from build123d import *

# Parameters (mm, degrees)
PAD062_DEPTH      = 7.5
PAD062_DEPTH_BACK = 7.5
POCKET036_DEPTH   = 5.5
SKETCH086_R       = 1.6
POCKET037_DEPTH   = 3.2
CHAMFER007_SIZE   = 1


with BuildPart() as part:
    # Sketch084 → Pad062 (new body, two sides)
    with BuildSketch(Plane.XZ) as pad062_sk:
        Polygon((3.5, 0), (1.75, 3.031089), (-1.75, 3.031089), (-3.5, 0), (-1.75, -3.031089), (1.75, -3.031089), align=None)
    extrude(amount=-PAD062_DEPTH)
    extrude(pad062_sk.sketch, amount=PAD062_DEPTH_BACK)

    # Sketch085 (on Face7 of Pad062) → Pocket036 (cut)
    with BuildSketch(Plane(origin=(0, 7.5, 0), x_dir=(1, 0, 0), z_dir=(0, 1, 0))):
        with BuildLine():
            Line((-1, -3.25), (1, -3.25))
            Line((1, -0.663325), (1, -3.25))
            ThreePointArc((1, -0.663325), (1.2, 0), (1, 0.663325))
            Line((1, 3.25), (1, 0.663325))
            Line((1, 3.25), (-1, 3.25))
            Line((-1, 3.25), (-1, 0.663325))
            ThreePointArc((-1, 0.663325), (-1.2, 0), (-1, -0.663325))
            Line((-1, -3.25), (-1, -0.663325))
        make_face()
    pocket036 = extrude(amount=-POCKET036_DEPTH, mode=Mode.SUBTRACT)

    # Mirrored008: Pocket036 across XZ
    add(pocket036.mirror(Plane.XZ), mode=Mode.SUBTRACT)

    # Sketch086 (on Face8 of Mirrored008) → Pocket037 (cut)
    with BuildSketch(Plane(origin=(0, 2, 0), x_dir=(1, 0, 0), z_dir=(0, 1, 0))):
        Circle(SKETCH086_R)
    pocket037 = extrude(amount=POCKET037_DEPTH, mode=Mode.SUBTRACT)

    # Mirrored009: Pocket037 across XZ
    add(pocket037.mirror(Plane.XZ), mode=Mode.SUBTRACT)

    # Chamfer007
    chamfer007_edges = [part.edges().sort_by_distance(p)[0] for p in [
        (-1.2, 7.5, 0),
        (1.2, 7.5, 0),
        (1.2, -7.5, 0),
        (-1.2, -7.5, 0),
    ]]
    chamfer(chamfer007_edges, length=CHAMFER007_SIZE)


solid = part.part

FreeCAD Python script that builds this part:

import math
import FreeCAD as App
import Part
import Sketcher

V = App.Vector
Q = App.Units.Quantity


def edges_at(feature, points):
    """Names of the edges that pass closest to the given points."""
    edges = feature.Shape.Edges
    near = lambda p: min(range(len(edges)), key=lambda i: edges[i].distToShape(Part.Vertex(*p))[0])
    return sorted({f"Edge{near(p) + 1}" for p in points})

doc = App.newDocument("Part")
body = doc.addObject("PartDesign::Body", "Body")

sketch1 = body.newObject("Sketcher::SketchObject", "Sketch")
sketch1.AttachmentSupport = (doc.getObject("XZ_Plane"), [""])
sketch1.MapMode = "FlatFace"
sketch1.addGeometry([
    Part.LineSegment(V(3.5, 0, 0), V(1.8, 3, 0)),
    Part.LineSegment(V(1.8, 3, 0), V(-1.8, 3, 0)),
    Part.LineSegment(V(-1.8, 3, 0), V(-3.5, 0, 0)),
    Part.LineSegment(V(-3.5, 0, 0), V(-1.8, -3, 0)),
    Part.LineSegment(V(-1.8, -3, 0), V(1.8, -3, 0)),
    Part.LineSegment(V(1.8, -3, 0), V(3.5, 0, 0)),
], False)
sketch1.addConstraint([
    Sketcher.Constraint("Coincident", 0, 2, 1, 1),
    Sketcher.Constraint("Coincident", 1, 2, 2, 1),
    Sketcher.Constraint("Coincident", 2, 2, 3, 1),
    Sketcher.Constraint("Coincident", 3, 2, 4, 1),
    Sketcher.Constraint("Coincident", 4, 2, 5, 1),
    Sketcher.Constraint("Coincident", 5, 2, 0, 1),
    Sketcher.Constraint("Horizontal", 1),
    Sketcher.Constraint("Horizontal", 4),
    Sketcher.Constraint("Symmetric", 0, 2, 3, 2, -1, 1),
    Sketcher.Constraint("Symmetric", 2, 2, 5, 2, -1, 1),
    Sketcher.Constraint("PointOnObject", 2, 2, -1),
    Sketcher.Constraint("Parallel", 2, 5),
    Sketcher.Constraint("Vertical", 1, 2, 3, 2),
    Sketcher.Constraint("Angle", 0, Q("119.999999 deg")),
    Sketcher.Constraint("DistanceX", 1, 2, 1, 1, 3.5),
    Sketcher.Constraint("DistanceX", 2, 2, 5, 2, 7.0),
])
pad1 = body.newObject("PartDesign::Pad", "Pad")
pad1.Profile = sketch1
pad1.Type = "TwoLengths"
pad1.Length = 7.5
pad1.Length2 = 7.5
pad1.Reversed = True

sketch2 = body.newObject("Sketcher::SketchObject", "Sketch001")
sketch2.AttachmentSupport = (doc.getObject("XZ_Plane"), [""])
sketch2.MapMode = "FlatFace"
sketch2.AttachmentOffset = App.Placement(V(0, 0, -7.5), App.Rotation())
sketch2.addGeometry([
    Part.LineSegment(V(-1, 3.2, 0), V(1, 3.2, 0)),
    Part.LineSegment(V(1, 3.2, 0), V(1, 0.7, 0)),
    Part.ArcOfCircle(Part.Circle(V(0, 0, 0), V(0, 0, 1), 1.2), math.radians(-34), math.radians(34)),
    Part.LineSegment(V(1, -0.7, 0), V(1, -3.2, 0)),
    Part.LineSegment(V(1, -3.2, 0), V(-1, -3.2, 0)),
    Part.LineSegment(V(-1, -3.2, 0), V(-1, -0.7, 0)),
    Part.ArcOfCircle(Part.Circle(V(0, 0, 0), V(0, 0, 1), 1.2), math.radians(146), math.radians(214)),
    Part.LineSegment(V(-1, 0.7, 0), V(-1, 3.2, 0)),
], False)
sketch2.addConstraint([
    Sketcher.Constraint("Coincident", 0, 2, 1, 1),
    Sketcher.Constraint("Coincident", 1, 2, 2, 2),
    Sketcher.Constraint("Coincident", 2, 1, 3, 1),
    Sketcher.Constraint("Coincident", 3, 2, 4, 1),
    Sketcher.Constraint("Coincident", 4, 2, 5, 1),
    Sketcher.Constraint("Coincident", 5, 2, 6, 2),
    Sketcher.Constraint("Coincident", 6, 1, 7, 1),
    Sketcher.Constraint("Coincident", 7, 2, 0, 1),
    Sketcher.Constraint("Horizontal", 0),
    Sketcher.Constraint("Vertical", 1),
    Sketcher.Constraint("Vertical", 3),
    Sketcher.Constraint("Horizontal", 4),
    Sketcher.Constraint("Vertical", 5),
    Sketcher.Constraint("Vertical", 7),
    Sketcher.Constraint("Coincident", 2, 3, -1, 1),
    Sketcher.Constraint("Coincident", 6, 3, -1, 1),
    Sketcher.Constraint("Equal", 2, 6),
    Sketcher.Constraint("Symmetric", 0, 2, 4, 2, -1, 1),
    Sketcher.Constraint("Horizontal", 2, 1, 5, 2),
    Sketcher.Constraint("Horizontal", 1, 2, 6, 1),
    Sketcher.Constraint("Radius", 2, 1.2),
    Sketcher.Constraint("DistanceX", 0, 1, 0, 2, 2.0),
    Sketcher.Constraint("DistanceY", 3, 2, 0, 2, 6.5),
])
pocket1 = body.newObject("PartDesign::Pocket", "Pocket")
pocket1.Profile = sketch2
pocket1.Length = 5.5
pocket1.Reversed = True
doc.recompute()

mirrored = body.newObject("PartDesign::Mirrored", "Mirrored")
mirrored.Originals = [pocket1]
mirrored.MirrorPlane = (doc.getObject("XZ_Plane"), [""])
body.Tip = mirrored

sketch3 = body.newObject("Sketcher::SketchObject", "Sketch002")
sketch3.AttachmentSupport = (doc.getObject("XZ_Plane"), [""])
sketch3.MapMode = "FlatFace"
sketch3.AttachmentOffset = App.Placement(V(0, 0, -2), App.Rotation())
sketch3.addGeometry(Part.Circle(V(0, 0, 0), V(0, 0, 1), 1.6), False)
sketch3.addConstraint([
    Sketcher.Constraint("Coincident", 0, 3, -1, 1),
    Sketcher.Constraint("Diameter", 0, 3.2),
])
pocket2 = body.newObject("PartDesign::Pocket", "Pocket001")
pocket2.Profile = sketch3
pocket2.Length = 3.2
doc.recompute()

mirrored2 = body.newObject("PartDesign::Mirrored", "Mirrored001")
mirrored2.Originals = [pocket2]
mirrored2.MirrorPlane = (doc.getObject("XZ_Plane"), [""])
body.Tip = mirrored2
doc.recompute()

chamfer = body.newObject("PartDesign::Chamfer", "Chamfer")
chamfer.Base = (mirrored2, edges_at(mirrored2, [
    (-1.2, 7.5, 0),
    (1.2, 7.5, 0),
    (1.2, -7.5, 0),
    (-1.2, -7.5, 0),
]))
chamfer.Size = 1

doc.recompute()
